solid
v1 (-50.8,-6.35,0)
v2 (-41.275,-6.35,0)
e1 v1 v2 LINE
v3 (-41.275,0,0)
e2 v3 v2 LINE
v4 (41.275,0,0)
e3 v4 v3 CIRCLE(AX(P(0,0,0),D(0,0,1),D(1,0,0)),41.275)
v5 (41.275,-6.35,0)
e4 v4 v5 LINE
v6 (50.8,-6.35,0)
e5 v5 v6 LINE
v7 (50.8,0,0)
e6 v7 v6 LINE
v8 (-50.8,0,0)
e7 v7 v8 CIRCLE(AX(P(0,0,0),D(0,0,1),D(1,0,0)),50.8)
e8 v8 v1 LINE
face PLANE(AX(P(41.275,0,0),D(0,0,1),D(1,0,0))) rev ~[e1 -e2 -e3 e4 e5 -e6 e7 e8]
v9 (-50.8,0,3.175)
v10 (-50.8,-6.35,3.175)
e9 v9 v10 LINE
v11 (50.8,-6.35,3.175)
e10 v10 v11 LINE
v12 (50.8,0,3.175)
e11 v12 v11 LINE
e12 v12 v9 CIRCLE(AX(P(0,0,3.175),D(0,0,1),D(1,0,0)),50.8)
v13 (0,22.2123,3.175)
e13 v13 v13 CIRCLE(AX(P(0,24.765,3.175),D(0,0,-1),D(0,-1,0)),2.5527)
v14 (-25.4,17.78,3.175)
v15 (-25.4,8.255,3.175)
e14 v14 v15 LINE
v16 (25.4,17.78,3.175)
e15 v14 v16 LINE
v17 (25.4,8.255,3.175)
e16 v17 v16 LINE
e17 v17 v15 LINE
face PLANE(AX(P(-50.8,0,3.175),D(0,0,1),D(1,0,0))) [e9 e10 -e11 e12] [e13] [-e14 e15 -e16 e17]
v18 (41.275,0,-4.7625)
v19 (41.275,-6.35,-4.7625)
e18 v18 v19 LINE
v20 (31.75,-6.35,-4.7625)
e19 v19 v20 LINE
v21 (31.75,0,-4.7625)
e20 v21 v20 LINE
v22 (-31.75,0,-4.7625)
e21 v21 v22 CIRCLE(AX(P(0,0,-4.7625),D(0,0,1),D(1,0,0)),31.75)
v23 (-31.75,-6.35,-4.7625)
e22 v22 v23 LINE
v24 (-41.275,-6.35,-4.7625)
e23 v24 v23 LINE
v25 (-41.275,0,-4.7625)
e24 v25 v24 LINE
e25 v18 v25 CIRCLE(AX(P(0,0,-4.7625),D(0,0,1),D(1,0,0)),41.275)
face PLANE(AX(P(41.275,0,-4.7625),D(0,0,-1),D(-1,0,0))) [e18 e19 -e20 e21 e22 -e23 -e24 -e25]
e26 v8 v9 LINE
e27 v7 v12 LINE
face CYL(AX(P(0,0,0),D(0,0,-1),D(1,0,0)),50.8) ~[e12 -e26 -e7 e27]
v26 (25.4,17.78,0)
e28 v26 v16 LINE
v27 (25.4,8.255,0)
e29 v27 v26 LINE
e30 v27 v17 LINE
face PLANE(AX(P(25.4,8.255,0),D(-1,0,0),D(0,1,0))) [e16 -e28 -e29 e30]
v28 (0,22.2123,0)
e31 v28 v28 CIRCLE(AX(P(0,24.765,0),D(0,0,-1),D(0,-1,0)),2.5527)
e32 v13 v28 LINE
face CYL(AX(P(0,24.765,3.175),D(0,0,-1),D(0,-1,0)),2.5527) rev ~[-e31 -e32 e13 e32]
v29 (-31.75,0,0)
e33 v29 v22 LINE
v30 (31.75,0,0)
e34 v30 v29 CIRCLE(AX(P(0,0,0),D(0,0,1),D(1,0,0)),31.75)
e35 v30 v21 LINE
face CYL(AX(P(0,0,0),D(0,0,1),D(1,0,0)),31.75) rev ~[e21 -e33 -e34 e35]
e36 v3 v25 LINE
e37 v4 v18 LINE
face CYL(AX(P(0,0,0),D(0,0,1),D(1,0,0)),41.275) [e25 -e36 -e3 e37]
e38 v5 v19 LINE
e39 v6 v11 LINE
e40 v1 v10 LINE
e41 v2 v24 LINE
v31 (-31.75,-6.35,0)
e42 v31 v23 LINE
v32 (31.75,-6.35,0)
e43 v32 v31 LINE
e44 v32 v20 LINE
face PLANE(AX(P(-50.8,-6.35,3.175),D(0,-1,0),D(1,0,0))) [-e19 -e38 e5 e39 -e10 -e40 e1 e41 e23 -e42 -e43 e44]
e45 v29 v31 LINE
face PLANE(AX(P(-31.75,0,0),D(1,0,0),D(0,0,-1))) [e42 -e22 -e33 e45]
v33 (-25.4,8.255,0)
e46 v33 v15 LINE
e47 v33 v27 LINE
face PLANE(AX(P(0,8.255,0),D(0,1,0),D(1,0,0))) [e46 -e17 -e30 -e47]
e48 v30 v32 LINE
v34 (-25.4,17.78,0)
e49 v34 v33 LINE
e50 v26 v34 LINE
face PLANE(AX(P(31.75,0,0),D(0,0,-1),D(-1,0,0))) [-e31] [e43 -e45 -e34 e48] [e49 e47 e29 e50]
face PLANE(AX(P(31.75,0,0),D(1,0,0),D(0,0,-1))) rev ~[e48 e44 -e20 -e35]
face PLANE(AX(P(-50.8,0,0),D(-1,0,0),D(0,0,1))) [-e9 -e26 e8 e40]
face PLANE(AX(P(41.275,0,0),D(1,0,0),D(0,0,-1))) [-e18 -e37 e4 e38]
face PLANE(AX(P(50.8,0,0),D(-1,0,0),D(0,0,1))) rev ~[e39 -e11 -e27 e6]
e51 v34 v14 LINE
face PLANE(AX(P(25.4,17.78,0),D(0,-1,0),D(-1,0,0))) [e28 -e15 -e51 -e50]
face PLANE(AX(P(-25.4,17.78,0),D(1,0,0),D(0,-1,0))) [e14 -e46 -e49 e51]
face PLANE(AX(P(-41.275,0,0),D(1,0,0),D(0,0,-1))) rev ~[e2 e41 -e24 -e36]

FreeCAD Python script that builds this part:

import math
import FreeCAD as App
import Part
import Sketcher
from FreeCAD import Vector
Q = App.Units.Quantity

doc = App.newDocument("Part")
body = doc.addObject("PartDesign::Body", "Body")

sketch1 = doc.addObject("Sketcher::SketchObject", "Sketch")
body.addObject(sketch1)
sketch1.AttachmentSupport = (doc.XY_Plane, [""])
sketch1.MapMode = "FlatFace"
sketch1.addGeometry([
    Part.ArcOfCircle(Part.Circle(Vector(0, 0, 0), Vector(0, 0, 1), 50.8), math.radians(0), math.radians(180)),
    Part.LineSegment(Vector(-50.8, 0, 0), Vector(50.8, 0, 0)),
    Part.LineSegment(Vector(25.4, 8.255, 0), Vector(-25.4, 8.255, 0)),
    Part.LineSegment(Vector(-25.4, 8.255, 0), Vector(-25.4, 17.78, 0)),
    Part.LineSegment(Vector(-25.4, 17.78, 0), Vector(25.4, 17.78, 0)),
    Part.LineSegment(Vector(25.4, 17.78, 0), Vector(25.4, 8.255, 0)),
], False)
sketch1.addConstraint([
    Sketcher.Constraint("Coincident", 0, 1, 1, 2),
    Sketcher.Constraint("Coincident", 1, 1, 0, 2),
    Sketcher.Constraint("Coincident", 2, 2, 3, 1),
    Sketcher.Constraint("Coincident", 3, 2, 4, 1),
    Sketcher.Constraint("Coincident", 4, 2, 5, 1),
    Sketcher.Constraint("Coincident", 5, 2, 2, 1),
    Sketcher.Constraint("Horizontal", 1),
    Sketcher.Constraint("Horizontal", 2),
    Sketcher.Constraint("Vertical", 3),
    Sketcher.Constraint("Horizontal", 4),
    Sketcher.Constraint("Vertical", 5),
    Sketcher.Constraint("Coincident", 0, 3, -1, 1),
    Sketcher.Constraint("PointOnObject", 0, 1, -1),
    Sketcher.Constraint("DistanceX", 2, 2, -1, 1, Q("1 in")),
    Sketcher.Constraint("DistanceX", -1, 1, 4, 2, Q("1 in")),
    Sketcher.Constraint("Radius", 0, Q("2 in")),
    Sketcher.Constraint("DistanceY", 3, 1, 3, 2, Q("0.375 in")),
    Sketcher.Constraint("DistanceY", -1, 1, 2, 2, Q("0.325 in")),
])
pad1 = doc.addObject("PartDesign::Pad", "Pad")
body.addObject(pad1)
pad1.Profile = sketch1
pad1.Length = Q("0.125 in")

sketch2 = doc.addObject("Sketcher::SketchObject", "Sketch001")
body.addObject(sketch2)
sketch2.AttachmentSupport = (doc.XY_Plane, [""])
sketch2.MapMode = "FlatFace"
sketch2.addGeometry([
    Part.ArcOfCircle(Part.Circle(Vector(0, 0, 0), Vector(0, 0, 1), 31.75), math.radians(0), math.radians(180)),
    Part.LineSegment(Vector(31.75, 0, 0), Vector(41.275, 0, 0)),
    Part.ArcOfCircle(Part.Circle(Vector(0, 0, 0), Vector(0, 0, 1), 41.275), math.radians(0), math.radians(180)),
    Part.LineSegment(Vector(-41.275, 0, 0), Vector(-31.75, 0, 0)),
], False)
sketch2.addConstraint([
    Sketcher.Constraint("Coincident", 0, 1, 1, 1),
    Sketcher.Constraint("Coincident", 1, 2, 2, 1),
    Sketcher.Constraint("Coincident", 2, 2, 3, 1),
    Sketcher.Constraint("Coincident", 3, 2, 0, 2),
    Sketcher.Constraint("Horizontal", 1),
    Sketcher.Constraint("Horizontal", 3),
    Sketcher.Constraint("Coincident", 0, 3, -1, 1),
    Sketcher.Constraint("Coincident", 2, 3, -1, 1),
    Sketcher.Constraint("PointOnObject", 0, 1, -1),
    Sketcher.Constraint("PointOnObject", 2, 2, -1),
    Sketcher.Constraint("Radius", 0, Q("1.25 in")),
    Sketcher.Constraint("DistanceX", 1, 1, 1, 2, Q("0.375 in")),
])
pad2 = doc.addObject("PartDesign::Pad", "Pad001")
body.addObject(pad2)
pad2.Profile = sketch2
pad2.Length = Q("0.1875 in")
pad2.Reversed = True

sketch3 = doc.addObject("Sketcher::SketchObject", "Sketch002")
body.addObject(sketch3)
sketch3.AttachmentSupport = (doc.XY_Plane, [""])
sketch3.MapMode = "FlatFace"
sketch3.AttachmentOffset = App.Placement(Vector(0, 0, 0.125 * 25.4), App.Rotation())
sketch3.addGeometry(Part.Circle(Vector(0, 24.765, 0), Vector(0, 0, 1), 2.5527), False)
sketch3.addConstraint([
    Sketcher.Constraint("PointOnObject", 0, 3, -2),
    Sketcher.Constraint("Diameter", 0, Q("0.201 in")),
    Sketcher.Constraint("DistanceY", -1, 1, 0, 3, Q("0.975 in")),
])
doc.recompute()
hole = doc.addObject("PartDesign::Hole", "Hole")
body.addObject(hole)
hole.Profile = sketch3
hole.ThreadType = "None"
hole.Diameter = Q("0.201 in")
hole.DepthType = "ThroughAll"

sketch4 = doc.addObject("Sketcher::SketchObject", "Sketch003")
body.addObject(sketch4)
sketch4.AttachmentSupport = (doc.XZ_Plane, [""])
sketch4.MapMode = "FlatFace"
sketch4.addGeometry([
    Part.LineSegment(Vector(41.275, 0, 0), Vector(50.8, 0, 0)),
    Part.LineSegment(Vector(50.8, 0, 0), Vector(50.8, 3.175, 0)),
    Part.LineSegment(Vector(50.8, 3.175, 0), Vector(-50.8, 3.175, 0)),
    Part.LineSegment(Vector(-50.8, 3.175, 0), Vector(-50.8, 0, 0)),
    Part.LineSegment(Vector(-50.8, 0, 0), Vector(-41.275, 0, 0)),
    Part.LineSegment(Vector(-41.275, 0, 0), Vector(-41.275, -4.7625, 0)),
    Part.LineSegment(Vector(-41.275, -4.7625, 0), Vector(-31.75, -4.7625, 0)),
    Part.LineSegment(Vector(-31.75, -4.7625, 0), Vector(-31.75, 0, 0)),
    Part.LineSegment(Vector(-31.75, 0, 0), Vector(31.75, 0, 0)),
    Part.LineSegment(Vector(31.75, 0, 0), Vector(31.75, -4.7625, 0)),
    Part.LineSegment(Vector(31.75, -4.7625, 0), Vector(41.275, -4.7625, 0)),
    Part.LineSegment(Vector(41.275, -4.7625, 0), Vector(41.275, 0, 0)),
], False)
sketch4.addConstraint([
    Sketcher.Constraint("Coincident", 0, 2, 1, 1),
    Sketcher.Constraint("Coincident", 1, 2, 2, 1),
    Sketcher.Constraint("Coincident", 2, 2, 3, 1),
    Sketcher.Constraint("Coincident", 3, 2, 4, 1),
    Sketcher.Constraint("Coincident", 4, 2, 5, 1),
    Sketcher.Constraint("Coincident", 5, 2, 6, 1),
    Sketcher.Constraint("Coincident", 6, 2, 7, 1),
    Sketcher.Constraint("Coincident", 7, 2, 8, 1),
    Sketcher.Constraint("Coincident", 8, 2, 9, 1),
    Sketcher.Constraint("Coincident", 9, 2, 10, 1),
    Sketcher.Constraint("Coincident", 10, 2, 11, 1),
    Sketcher.Constraint("Coincident", 11, 2, 0, 1),
    Sketcher.Constraint("Horizontal", 0),
    Sketcher.Constraint("Vertical", 1),
    Sketcher.Constraint("Horizontal", 2),
    Sketcher.Constraint("Vertical", 3),
    Sketcher.Constraint("Horizontal", 4),
    Sketcher.Constraint("Vertical", 5),
    Sketcher.Constraint("Horizontal", 6),
    Sketcher.Constraint("Vertical", 7),
    Sketcher.Constraint("Horizontal", 8),
    Sketcher.Constraint("Vertical", 9),
    Sketcher.Constraint("Horizontal", 10),
    Sketcher.Constraint("Vertical", 11),
    Sketcher.Constraint("Symmetric", 0, 2, 3, 2, -1, 1),
    Sketcher.Constraint("Symmetric", 7, 2, 8, 2, -1, 1),
    Sketcher.Constraint("Symmetric", 5, 2, 10, 2, -2),
    Sketcher.Constraint("PointOnObject", 0, 2, -1),
    Sketcher.Constraint("Equal", 4, 6),
    Sketcher.Constraint("DistanceX", 2, 2, 2, 1, Q("4 in")),
    Sketcher.Constraint("DistanceX", 8, 1, 8, 2, Q("2.5 in")),
    Sketcher.Constraint("DistanceY", 1, 1, 1, 2, Q("0.125 in")),
    Sketcher.Constraint("DistanceY", 5, 2, 5, 1, Q("0.1875 in")),
])
pad3 = doc.addObject("PartDesign::Pad", "Pad002")
body.addObject(pad3)
pad3.Profile = sketch4
pad3.Length = Q("0.25 in")

doc.recompute()
